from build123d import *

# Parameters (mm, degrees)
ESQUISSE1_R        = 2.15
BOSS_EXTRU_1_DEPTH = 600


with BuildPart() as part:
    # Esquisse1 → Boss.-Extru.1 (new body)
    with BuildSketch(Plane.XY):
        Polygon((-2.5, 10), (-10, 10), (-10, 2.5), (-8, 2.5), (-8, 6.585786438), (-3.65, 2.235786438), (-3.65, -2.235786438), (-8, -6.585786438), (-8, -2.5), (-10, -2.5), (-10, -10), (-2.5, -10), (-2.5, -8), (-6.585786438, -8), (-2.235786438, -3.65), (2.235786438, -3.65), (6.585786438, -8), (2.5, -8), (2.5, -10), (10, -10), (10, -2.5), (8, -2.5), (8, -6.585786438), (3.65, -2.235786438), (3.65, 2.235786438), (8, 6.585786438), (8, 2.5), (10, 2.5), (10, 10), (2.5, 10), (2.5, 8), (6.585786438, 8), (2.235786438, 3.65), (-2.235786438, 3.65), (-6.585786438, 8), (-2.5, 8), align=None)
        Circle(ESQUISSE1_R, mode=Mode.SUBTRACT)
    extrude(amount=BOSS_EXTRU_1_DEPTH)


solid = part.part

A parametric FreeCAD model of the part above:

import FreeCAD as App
import Part
import Sketcher

V = App.Vector


def add_polygon(sketch, points):
    """Adds a closed chain of lines whose ends are joined by coincident constraints."""
    first, n = sketch.GeometryCount, len(points)
    for a, b in zip(points, points[1:] + points[:1]):
        sketch.addGeometry(Part.LineSegment(App.Vector(*a, 0), App.Vector(*b, 0)), False)
    for i in range(n):
        sketch.addConstraint(Sketcher.Constraint("Coincident", first + i, 2, first + (i + 1) % n, 1))

doc = App.newDocument("Part")
body = doc.addObject("PartDesign::Body", "Body")

# Sketch on XY plane
sketch1 = body.newObject("Sketcher::SketchObject", "Sketch")
sketch1.AttachmentSupport = (doc.getObject("XY_Plane"), [""])
sketch1.MapMode = "FlatFace"
add_polygon(sketch1, [(-2.5, 10), (-10, 10), (-10, 2.5), (-8, 2.5), (-8, 6.6), (-3.6, 2.2), (-3.6, -2.2), (-8, -6.6), (-8, -2.5), (-10, -2.5), (-10, -10), (-2.5, -10), (-2.5, -8), (-6.6, -8), (-2.2, -3.6), (2.2, -3.6), (6.6, -8), (2.5, -8), (2.5, -10), (10, -10), (10, -2.5), (8, -2.5), (8, -6.6), (3.6, -2.2), (3.6, 2.2), (8, 6.6), (8, 2.5), (10, 2.5), (10, 10), (2.5, 10), (2.5, 8), (6.6, 8), (2.2, 3.6), (-2.2, 3.6), (-6.6, 8), (-2.5, 8)])  # lines 0-35
sketch1.addGeometry(Part.Circle(V(0, 0, 0), V(0, 0, 1), 2.1), False)  # 36
sketch1.addConstraint(Sketcher.Constraint("Horizontal", 0))
sketch1.addConstraint(Sketcher.Constraint("Vertical", 1))
sketch1.addConstraint(Sketcher.Constraint("Horizontal", 2))
sketch1.addConstraint(Sketcher.Constraint("Vertical", 3))
sketch1.addConstraint(Sketcher.Constraint("Vertical", 5))
sketch1.addConstraint(Sketcher.Constraint("Vertical", 7))
sketch1.addConstraint(Sketcher.Constraint("Horizontal", 8))
sketch1.addConstraint(Sketcher.Constraint("Vertical", 9))
sketch1.addConstraint(Sketcher.Constraint("Horizontal", 10))
sketch1.addConstraint(Sketcher.Constraint("Vertical", 11))
sketch1.addConstraint(Sketcher.Constraint("Horizontal", 12))
sketch1.addConstraint(Sketcher.Constraint("Horizontal", 14))
sketch1.addConstraint(Sketcher.Constraint("Horizontal", 16))
sketch1.addConstraint(Sketcher.Constraint("Vertical", 17))
sketch1.addConstraint(Sketcher.Constraint("Horizontal", 18))
sketch1.addConstraint(Sketcher.Constraint("Vertical", 19))
sketch1.addConstraint(Sketcher.Constraint("Horizontal", 20))
sketch1.addConstraint(Sketcher.Constraint("Vertical", 21))
sketch1.addConstraint(Sketcher.Constraint("Vertical", 23))
sketch1.addConstraint(Sketcher.Constraint("Vertical", 25))
sketch1.addConstraint(Sketcher.Constraint("Horizontal", 26))
sketch1.addConstraint(Sketcher.Constraint("Vertical", 27))
sketch1.addConstraint(Sketcher.Constraint("Horizontal", 28))
sketch1.addConstraint(Sketcher.Constraint("Vertical", 29))
sketch1.addConstraint(Sketcher.Constraint("Horizontal", 30))
sketch1.addConstraint(Sketcher.Constraint("Horizontal", 32))
sketch1.addConstraint(Sketcher.Constraint("Horizontal", 34))
sketch1.addConstraint(Sketcher.Constraint("Vertical", 35))
sketch1.addConstraint(Sketcher.Constraint("Coincident", 36, 3, -1, 1))
sketch1.addConstraint(Sketcher.Constraint("Symmetric", 0, 2, 18, 2, -1, 1))
sketch1.addConstraint(Sketcher.Constraint("Symmetric", 2, 2, 20, 2, -1, 1))
sketch1.addConstraint(Sketcher.Constraint("Symmetric", 4, 2, 22, 2, -1, 1))
sketch1.addConstraint(Sketcher.Constraint("Symmetric", 6, 2, 24, 2, -1, 1))
sketch1.addConstraint(Sketcher.Constraint("Symmetric", 8, 2, 26, 2, -1, 1))
sketch1.addConstraint(Sketcher.Constraint("Symmetric", 10, 2, 28, 2, -1, 1))
sketch1.addConstraint(Sketcher.Constraint("Symmetric", 12, 2, 30, 2, -1, 1))
sketch1.addConstraint(Sketcher.Constraint("Symmetric", 13, 2, 31, 2, -1, 1))
sketch1.addConstraint(Sketcher.Constraint("Symmetric", 15, 2, 33, 2, -1, 1))
sketch1.addConstraint(Sketcher.Constraint("Symmetric", 12, 2, 15, 2, -2))
sketch1.addConstraint(Sketcher.Constraint("Symmetric", 10, 2, 17, 2, -2))
sketch1.addConstraint(Sketcher.Constraint("Symmetric", 8, 2, 19, 2, -2))
sketch1.addConstraint(Sketcher.Constraint("Symmetric", 6, 2, 21, 2, -2))
sketch1.addConstraint(Sketcher.Constraint("Perpendicular", 4, 6))
sketch1.addConstraint(Sketcher.Constraint("Parallel", 6, 13))
sketch1.addConstraint(Sketcher.Constraint("Perpendicular", 13, 15))
sketch1.addConstraint(Sketcher.Constraint("Parallel", 15, 22))
sketch1.addConstraint(Sketcher.Constraint("Perpendicular", 22, 24))
sketch1.addConstraint(Sketcher.Constraint("Perpendicular", 31, 33))
sketch1.addConstraint(Sketcher.Constraint("Horizontal", 5, 2, 22, 2))
sketch1.addConstraint(Sketcher.Constraint("Vertical", 11, 2, 34, 2))
sketch1.addConstraint(Sketcher.Constraint("Equal", 28, 1))
sketch1.addConstraint(Sketcher.Constraint("Equal", 34, 3))
sketch1.addConstraint(Sketcher.Constraint("Equal", 32, 5))
sketch1.addConstraint(Sketcher.Constraint("Equal", 26, 11))
sketch1.addConstraint(Sketcher.Constraint("Equal", 6, 13))
sketch1.addConstraint(Sketcher.Constraint("Diameter", 36, 4.3))
sketch1.addConstraint(Sketcher.Constraint("DistanceX", 2, 1, 2, 2, 2.0))
sketch1.addConstraint(Sketcher.Constraint("DistanceX", 0, 2, 0, 1, 7.5))
sketch1.addConstraint(Sketcher.Constraint("DistanceX", 0, 2, -1, 1, 10.0))
sketch1.addConstraint(Sketcher.Constraint("DistanceX", 4, 2, 23, 2, 7.3))
sketch1.addConstraint(Sketcher.Constraint("DistanceX", 12, 2, 12, 1, 4.085786))
pad1 = body.newObject("PartDesign::Pad", "Pad")
pad1.Profile = sketch1
pad1.Length = 600

doc.recompute()
